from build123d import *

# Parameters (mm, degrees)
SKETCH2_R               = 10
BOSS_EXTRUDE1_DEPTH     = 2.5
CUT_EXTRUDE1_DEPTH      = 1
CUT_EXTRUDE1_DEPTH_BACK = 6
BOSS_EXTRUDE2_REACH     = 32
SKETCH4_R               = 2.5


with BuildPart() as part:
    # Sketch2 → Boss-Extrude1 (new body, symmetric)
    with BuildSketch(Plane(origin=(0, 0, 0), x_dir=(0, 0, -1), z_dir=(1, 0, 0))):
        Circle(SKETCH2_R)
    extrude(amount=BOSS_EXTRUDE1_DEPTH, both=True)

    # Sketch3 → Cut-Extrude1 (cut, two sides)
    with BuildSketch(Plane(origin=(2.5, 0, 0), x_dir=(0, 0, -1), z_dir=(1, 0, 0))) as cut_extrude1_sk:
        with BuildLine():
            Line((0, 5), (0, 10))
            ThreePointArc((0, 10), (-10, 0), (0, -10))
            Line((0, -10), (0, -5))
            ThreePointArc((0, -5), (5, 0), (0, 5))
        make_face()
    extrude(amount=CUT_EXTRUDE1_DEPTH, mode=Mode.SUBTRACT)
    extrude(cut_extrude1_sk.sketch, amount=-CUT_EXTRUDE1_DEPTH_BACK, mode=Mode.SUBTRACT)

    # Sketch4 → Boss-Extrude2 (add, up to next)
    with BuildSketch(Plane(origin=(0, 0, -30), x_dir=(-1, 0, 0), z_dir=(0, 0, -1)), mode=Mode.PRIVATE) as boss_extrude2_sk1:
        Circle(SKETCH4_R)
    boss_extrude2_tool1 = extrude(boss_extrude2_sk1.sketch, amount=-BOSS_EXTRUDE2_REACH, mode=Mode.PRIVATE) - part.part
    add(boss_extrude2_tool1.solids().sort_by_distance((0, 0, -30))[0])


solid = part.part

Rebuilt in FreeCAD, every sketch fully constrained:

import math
import FreeCAD as App
import Part
import Sketcher
from FreeCAD import Vector

doc = App.newDocument("Part")
body = doc.addObject("PartDesign::Body", "Body")

# Sketch on YZ plane
sketch1 = body.newObject("Sketcher::SketchObject", "Sketch")
sketch1.AttachmentSupport = (doc.getObject("YZ_Plane"), [""])
sketch1.MapMode = "FlatFace"
sketch1.addGeometry(Part.Circle(Vector(0, 0, 0), Vector(0, 0, 1), 10), False)
sketch1.addConstraint([
    Sketcher.Constraint("Coincident", 0, 3, -1, 1),
    Sketcher.Constraint("Diameter", 0, 20.0),
])
pad1 = body.newObject("PartDesign::Pad", "Pad")
pad1.Profile = sketch1
pad1.Length = 5
pad1.Midplane = True

# Sketch on YZ plane
sketch2 = body.newObject("Sketcher::SketchObject", "Sketch001")
sketch2.AttachmentSupport = (doc.getObject("YZ_Plane"), [""])
sketch2.MapMode = "FlatFace"
sketch2.AttachmentOffset = App.Placement(Vector(0, 0, 2.5), App.Rotation())
sketch2.addGeometry([
    Part.LineSegment(Vector(5, 0, 0), Vector(10, 0, 0)),
    Part.ArcOfCircle(Part.Circle(Vector(0, 0, 0), Vector(0, 0, 1), 10), math.radians(0), math.radians(180)),
    Part.LineSegment(Vector(-10, 0, 0), Vector(-5, 0, 0)),
    Part.ArcOfCircle(Part.Circle(Vector(0, 0, 0), Vector(0, 0, 1), 5), math.radians(180), math.radians(360)),
], False)
sketch2.addConstraint([
    Sketcher.Constraint("Coincident", 0, 2, 1, 1),
    Sketcher.Constraint("Coincident", 1, 2, 2, 1),
    Sketcher.Constraint("Coincident", 2, 2, 3, 1),
    Sketcher.Constraint("Coincident", 3, 2, 0, 1),
    Sketcher.Constraint("Horizontal", 0),
    Sketcher.Constraint("Horizontal", 2),
    Sketcher.Constraint("Coincident", 1, 3, -1, 1),
    Sketcher.Constraint("Coincident", 3, 3, -1, 1),
    Sketcher.Constraint("PointOnObject", 0, 2, -1),
    Sketcher.Constraint("PointOnObject", 1, 2, -1),
    Sketcher.Constraint("Radius", 1, 10.0),
    Sketcher.Constraint("Radius", 3, 5.0),
])
pocket1 = body.newObject("PartDesign::Pocket", "Pocket")
pocket1.Profile = sketch2
pocket1.Type = "ThroughAll"
pocket1.Midplane = True

# Sketch on XY plane
sketch3 = body.newObject("Sketcher::SketchObject", "Sketch002")
sketch3.AttachmentSupport = (doc.getObject("XY_Plane"), [""])
sketch3.MapMode = "FlatFace"
sketch3.AttachmentOffset = App.Placement(Vector(0, 0, -30), App.Rotation())
sketch3.addGeometry(Part.Circle(Vector(0, 0, 0), Vector(0, 0, 1), 2.5), False)
sketch3.addConstraint([
    Sketcher.Constraint("Coincident", 0, 3, -1, 1),
    Sketcher.Constraint("Diameter", 0, 5.0),
])
pad2 = body.newObject("PartDesign::Pad", "Pad001")
pad2.Profile = sketch3
pad2.Type = "UpToFirst"

doc.recompute()
